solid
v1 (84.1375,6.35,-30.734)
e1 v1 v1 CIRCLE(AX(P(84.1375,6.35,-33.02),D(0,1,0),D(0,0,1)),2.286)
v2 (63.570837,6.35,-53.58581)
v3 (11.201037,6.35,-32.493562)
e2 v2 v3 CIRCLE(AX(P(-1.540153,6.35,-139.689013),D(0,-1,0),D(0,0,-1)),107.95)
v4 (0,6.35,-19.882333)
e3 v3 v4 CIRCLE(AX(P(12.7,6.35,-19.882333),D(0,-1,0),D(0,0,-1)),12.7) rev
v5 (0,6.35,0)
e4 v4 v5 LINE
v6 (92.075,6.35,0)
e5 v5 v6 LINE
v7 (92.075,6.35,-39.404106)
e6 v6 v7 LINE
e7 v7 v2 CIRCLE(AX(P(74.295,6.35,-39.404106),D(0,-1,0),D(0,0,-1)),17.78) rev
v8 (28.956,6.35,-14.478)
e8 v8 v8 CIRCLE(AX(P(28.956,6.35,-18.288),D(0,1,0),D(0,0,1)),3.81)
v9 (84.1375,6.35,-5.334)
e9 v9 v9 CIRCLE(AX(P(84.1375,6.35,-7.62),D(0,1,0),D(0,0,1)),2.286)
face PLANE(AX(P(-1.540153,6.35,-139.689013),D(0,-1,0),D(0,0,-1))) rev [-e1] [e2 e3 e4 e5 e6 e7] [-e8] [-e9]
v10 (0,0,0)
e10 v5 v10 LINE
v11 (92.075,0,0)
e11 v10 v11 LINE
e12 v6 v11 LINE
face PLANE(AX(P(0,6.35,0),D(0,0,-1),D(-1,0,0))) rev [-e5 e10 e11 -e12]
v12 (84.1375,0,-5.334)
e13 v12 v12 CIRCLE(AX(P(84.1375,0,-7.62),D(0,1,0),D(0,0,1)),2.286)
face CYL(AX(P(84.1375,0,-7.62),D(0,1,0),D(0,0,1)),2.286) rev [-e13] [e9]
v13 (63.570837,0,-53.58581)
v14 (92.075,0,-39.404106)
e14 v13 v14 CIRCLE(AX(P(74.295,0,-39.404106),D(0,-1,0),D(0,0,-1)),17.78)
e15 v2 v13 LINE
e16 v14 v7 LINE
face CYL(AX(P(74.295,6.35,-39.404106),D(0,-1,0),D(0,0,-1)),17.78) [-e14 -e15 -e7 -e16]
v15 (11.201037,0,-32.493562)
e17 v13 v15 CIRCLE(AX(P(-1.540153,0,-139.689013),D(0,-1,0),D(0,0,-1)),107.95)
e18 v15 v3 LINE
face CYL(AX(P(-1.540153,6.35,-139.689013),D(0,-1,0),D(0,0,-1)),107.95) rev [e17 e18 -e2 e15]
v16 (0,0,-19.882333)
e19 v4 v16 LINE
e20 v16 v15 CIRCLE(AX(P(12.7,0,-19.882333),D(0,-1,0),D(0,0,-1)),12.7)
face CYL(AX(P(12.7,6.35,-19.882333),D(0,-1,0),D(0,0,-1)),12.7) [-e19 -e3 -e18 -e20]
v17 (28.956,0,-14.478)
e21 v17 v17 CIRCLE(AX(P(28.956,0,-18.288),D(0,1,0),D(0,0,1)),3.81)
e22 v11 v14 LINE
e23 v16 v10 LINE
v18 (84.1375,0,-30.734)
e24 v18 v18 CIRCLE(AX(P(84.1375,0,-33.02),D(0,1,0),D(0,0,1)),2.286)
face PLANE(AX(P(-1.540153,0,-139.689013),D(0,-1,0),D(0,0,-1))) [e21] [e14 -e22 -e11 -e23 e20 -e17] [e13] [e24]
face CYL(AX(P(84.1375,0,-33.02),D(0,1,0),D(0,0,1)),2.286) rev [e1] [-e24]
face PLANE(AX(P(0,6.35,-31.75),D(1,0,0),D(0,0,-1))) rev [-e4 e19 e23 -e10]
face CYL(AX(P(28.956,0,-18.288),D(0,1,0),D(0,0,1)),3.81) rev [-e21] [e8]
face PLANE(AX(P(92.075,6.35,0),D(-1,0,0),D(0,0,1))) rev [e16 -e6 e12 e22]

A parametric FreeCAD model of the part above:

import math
import FreeCAD as App
import Part
import Sketcher
from FreeCAD import Vector
Q = App.Units.Quantity


def edges_at(feature, points):
    """Names of the edges that pass closest to the given points."""
    edges = feature.Shape.Edges
    near = lambda p: min(range(len(edges)), key=lambda i: edges[i].distToShape(Part.Vertex(*p))[0])
    return sorted({f"Edge{near(p) + 1}" for p in points})

doc = App.newDocument("Part")
body = doc.addObject("PartDesign::Body", "Body")

# Sketch on XZ plane
sketch1 = body.newObject("Sketcher::SketchObject", "Sketch")
sketch1.AttachmentSupport = (doc.getObject("XZ_Plane"), [""])
sketch1.MapMode = "FlatFace"
sketch1.addGeometry(Part.LineSegment(Vector(0, 0, 0), Vector(92.075, 0, 0)), False)
sketch1.addGeometry(Part.LineSegment(Vector(92.075, 0, 0), Vector(92.075, -85.93582, 0)), False)
sketch1.addGeometry(Part.ArcOfCircle(Part.Circle(Vector(-1.540153, -139.689013, 0), Vector(0, 0, 1), 107.95), math.radians(29.864153), math.radians(89.182517)), False)
sketch1.addGeometry(Part.LineSegment(Vector(0, -31.75, 0), Vector(0, 0, 0)), False)
sketch1.addConstraint(Sketcher.Constraint("Coincident", 0, 2, 1, 1))
sketch1.addConstraint(Sketcher.Constraint("Coincident", 1, 2, 2, 1))
sketch1.addConstraint(Sketcher.Constraint("Coincident", 2, 2, 3, 1))
sketch1.addConstraint(Sketcher.Constraint("Coincident", 3, 2, 0, 1))
sketch1.addConstraint(Sketcher.Constraint("Horizontal", 0))
sketch1.addConstraint(Sketcher.Constraint("Vertical", 1))
sketch1.addConstraint(Sketcher.Constraint("Vertical", 3))
sketch1.addConstraint(Sketcher.Constraint("Coincident", 3, 2, -1, 1))
sketch1.addConstraint(Sketcher.Constraint("Radius", 2, Q("4.25 in")))
sketch1.addConstraint(Sketcher.Constraint("DistanceY", 3, 1, 3, 2, Q("1.25 in")))
sketch1.addConstraint(Sketcher.Constraint("DistanceX", 0, 1, 0, 2, Q("3.625 in")))
sketch1.addConstraint(Sketcher.Constraint("DistanceY", 1, 2, 1, 1, Q("3.3833 in")))
pad1 = body.newObject("PartDesign::Pad", "Pad")
pad1.Profile = sketch1
pad1.Length = Q("0.25 in")
pad1.Reversed = True
doc.recompute()

fillet = body.newObject("PartDesign::Fillet", "Fillet")
fillet.Base = (pad1, edges_at(pad1, [(0, 3.175, -31.75)]))
fillet.Radius = Q("0.5 in")

# Sketch on XZ plane
sketch2 = body.newObject("Sketcher::SketchObject", "Sketch001")
sketch2.AttachmentSupport = (doc.getObject("XZ_Plane"), [""])
sketch2.MapMode = "FlatFace"
sketch2.AttachmentOffset = App.Placement(Vector(0, 0, -0.25 * 25.4), App.Rotation())
sketch2.addGeometry(Part.Circle(Vector(84.1375, -7.62, 0), Vector(0, 0, 1), 2.286), False)
sketch2.addGeometry(Part.Circle(Vector(84.1375, -33.02, 0), Vector(0, 0, 1), 2.286), False)
sketch2.addConstraint(Sketcher.Constraint("Equal", 0, 1))
sketch2.addConstraint(Sketcher.Constraint("Vertical", 0, 3, 1, 3))
sketch2.addConstraint(Sketcher.Constraint("Diameter", 0, Q("0.18 in")))
sketch2.addConstraint(Sketcher.Constraint("DistanceY", 1, 3, 0, 3, Q("1 in")))
sketch2.addConstraint(Sketcher.Constraint("DistanceY", 0, 3, -1, 1, Q("0.3 in")))
sketch2.addConstraint(Sketcher.Constraint("DistanceX", -1, 1, 0, 3, Q("3.3125 in")))
pocket1 = body.newObject("PartDesign::Pocket", "Pocket")
pocket1.Profile = sketch2
pocket1.Type = "ThroughAll"
pocket1.Reversed = True

# Sketch on XZ plane
sketch3 = body.newObject("Sketcher::SketchObject", "Sketch002")
sketch3.AttachmentSupport = (doc.getObject("XZ_Plane"), [""])
sketch3.MapMode = "FlatFace"
sketch3.AttachmentOffset = App.Placement(Vector(0, 0, -0.25 * 25.4), App.Rotation())
sketch3.addGeometry(Part.Circle(Vector(28.956, -18.288, 0), Vector(0, 0, 1), 3.81), False)
sketch3.addConstraint(Sketcher.Constraint("Diameter", 0, Q("0.3 in")))
sketch3.addConstraint(Sketcher.Constraint("DistanceX", -1, 1, 0, 3, Q("1.14 in")))
sketch3.addConstraint(Sketcher.Constraint("DistanceY", 0, 3, -1, 1, Q("0.72 in")))
pocket2 = body.newObject("PartDesign::Pocket", "Pocket001")
pocket2.Profile = sketch3
pocket2.Type = "ThroughAll"
pocket2.Reversed = True
doc.recompute()

fillet2 = body.newObject("PartDesign::Fillet", "Fillet001")
fillet2.Base = (pocket2, edges_at(pocket2, [(92.075, 3.175, -85.936)]))
fillet2.Radius = Q("0.7 in")

doc.recompute()
